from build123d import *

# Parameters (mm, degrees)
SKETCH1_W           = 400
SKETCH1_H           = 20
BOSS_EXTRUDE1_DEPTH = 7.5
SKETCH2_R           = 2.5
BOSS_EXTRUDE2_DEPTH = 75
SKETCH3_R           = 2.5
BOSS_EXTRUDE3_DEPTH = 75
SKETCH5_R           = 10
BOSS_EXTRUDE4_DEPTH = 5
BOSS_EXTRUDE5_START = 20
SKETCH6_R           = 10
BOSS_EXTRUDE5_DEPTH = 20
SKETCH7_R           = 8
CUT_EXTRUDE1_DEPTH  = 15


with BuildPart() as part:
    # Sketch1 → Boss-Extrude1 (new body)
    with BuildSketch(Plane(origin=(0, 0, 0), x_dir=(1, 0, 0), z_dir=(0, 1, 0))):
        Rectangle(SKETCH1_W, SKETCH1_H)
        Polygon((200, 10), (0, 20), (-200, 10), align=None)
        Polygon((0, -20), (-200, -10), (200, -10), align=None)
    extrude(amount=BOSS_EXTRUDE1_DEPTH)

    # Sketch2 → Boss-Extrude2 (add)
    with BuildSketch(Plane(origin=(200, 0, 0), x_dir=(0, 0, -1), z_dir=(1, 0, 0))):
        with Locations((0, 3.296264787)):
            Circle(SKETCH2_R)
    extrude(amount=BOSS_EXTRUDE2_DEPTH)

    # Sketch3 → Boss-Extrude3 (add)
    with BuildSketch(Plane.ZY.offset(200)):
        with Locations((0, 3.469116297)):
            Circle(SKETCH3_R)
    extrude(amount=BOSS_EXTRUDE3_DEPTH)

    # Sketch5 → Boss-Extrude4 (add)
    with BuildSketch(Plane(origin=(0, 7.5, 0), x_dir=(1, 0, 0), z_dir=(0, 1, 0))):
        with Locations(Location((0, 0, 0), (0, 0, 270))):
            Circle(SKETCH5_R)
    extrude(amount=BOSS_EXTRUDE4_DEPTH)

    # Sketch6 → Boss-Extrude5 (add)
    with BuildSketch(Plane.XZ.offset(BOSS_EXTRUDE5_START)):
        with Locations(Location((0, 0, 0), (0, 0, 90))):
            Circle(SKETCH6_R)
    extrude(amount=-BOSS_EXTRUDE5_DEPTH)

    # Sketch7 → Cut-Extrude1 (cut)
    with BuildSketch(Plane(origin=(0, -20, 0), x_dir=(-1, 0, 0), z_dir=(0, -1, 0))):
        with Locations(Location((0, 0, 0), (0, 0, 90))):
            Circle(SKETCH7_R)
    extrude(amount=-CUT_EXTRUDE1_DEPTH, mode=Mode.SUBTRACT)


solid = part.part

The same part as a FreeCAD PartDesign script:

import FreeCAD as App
import Part
import Sketcher

V = App.Vector
Q = App.Units.Quantity

doc = App.newDocument("Part")
body = doc.addObject("PartDesign::Body", "Body")

# Sketch on XZ plane
sketch1 = body.newObject("Sketcher::SketchObject", "Sketch")
sketch1.AttachmentSupport = (doc.getObject("XZ_Plane"), [""])
sketch1.MapMode = "FlatFace"
sketch1.addGeometry(Part.LineSegment(V(-200, -10, 0), V(-200, 10, 0)), False)
sketch1.addGeometry(Part.LineSegment(V(-200, 10, 0), V(0, 20, 0)), False)
sketch1.addGeometry(Part.LineSegment(V(0, 20, 0), V(200, 10, 0)), False)
sketch1.addGeometry(Part.LineSegment(V(200, 10, 0), V(200, -10, 0)), False)
sketch1.addGeometry(Part.LineSegment(V(200, -10, 0), V(0, -20, 0)), False)
sketch1.addGeometry(Part.LineSegment(V(0, -20, 0), V(-200, -10, 0)), False)
sketch1.addConstraint(Sketcher.Constraint("Coincident", 0, 2, 1, 1))
sketch1.addConstraint(Sketcher.Constraint("Coincident", 1, 2, 2, 1))
sketch1.addConstraint(Sketcher.Constraint("Coincident", 2, 2, 3, 1))
sketch1.addConstraint(Sketcher.Constraint("Coincident", 3, 2, 4, 1))
sketch1.addConstraint(Sketcher.Constraint("Coincident", 4, 2, 5, 1))
sketch1.addConstraint(Sketcher.Constraint("Coincident", 5, 2, 0, 1))
sketch1.addConstraint(Sketcher.Constraint("Vertical", 0))
sketch1.addConstraint(Sketcher.Constraint("Vertical", 3))
sketch1.addConstraint(Sketcher.Constraint("Symmetric", 0, 2, 3, 2, -1, 1))
sketch1.addConstraint(Sketcher.Constraint("Symmetric", 1, 2, 4, 2, -1, 1))
sketch1.addConstraint(Sketcher.Constraint("PointOnObject", 1, 2, -2))
sketch1.addConstraint(Sketcher.Constraint("Parallel", 2, 5))
sketch1.addConstraint(Sketcher.Constraint("Horizontal", 0, 2, 2, 2))
sketch1.addConstraint(Sketcher.Constraint("DistanceY", 0, 1, 0, 2, Q("20 mm")))
sketch1.addConstraint(Sketcher.Constraint("DistanceX", 0, 2, -1, 1, Q("200 mm")))
sketch1.addConstraint(Sketcher.Constraint("DistanceY", -1, 1, 1, 2, Q("20 mm")))
pad1 = body.newObject("PartDesign::Pad", "Pad")
pad1.Profile = sketch1
pad1.Length = 7.5
pad1.Reversed = True

# Sketch on YZ plane
sketch2 = body.newObject("Sketcher::SketchObject", "Sketch001")
sketch2.AttachmentSupport = (doc.getObject("YZ_Plane"), [""])
sketch2.MapMode = "FlatFace"
sketch2.AttachmentOffset = App.Placement(V(0, 0, 200), App.Rotation())
sketch2.addGeometry(Part.Circle(V(3.3, 0, 0), V(0, 0, 1), 2.5), False)
sketch2.addConstraint(Sketcher.Constraint("PointOnObject", 0, 3, -1))
sketch2.addConstraint(Sketcher.Constraint("Diameter", 0, Q("5 mm")))
sketch2.addConstraint(Sketcher.Constraint("DistanceX", -1, 1, 0, 3, Q("3.296265 mm")))
pad2 = body.newObject("PartDesign::Pad", "Pad001")
pad2.Profile = sketch2
pad2.Length = 75

# Sketch on YZ plane
sketch3 = body.newObject("Sketcher::SketchObject", "Sketch002")
sketch3.AttachmentSupport = (doc.getObject("YZ_Plane"), [""])
sketch3.MapMode = "FlatFace"
sketch3.AttachmentOffset = App.Placement(V(0, 0, -200), App.Rotation())
sketch3.addGeometry(Part.Circle(V(3.5, 0, 0), V(0, 0, 1), 2.5), False)
sketch3.addConstraint(Sketcher.Constraint("PointOnObject", 0, 3, -1))
sketch3.addConstraint(Sketcher.Constraint("Diameter", 0, Q("5 mm")))
sketch3.addConstraint(Sketcher.Constraint("DistanceX", -1, 1, 0, 3, Q("3.469116 mm")))
pad3 = body.newObject("PartDesign::Pad", "Pad002")
pad3.Profile = sketch3
pad3.Length = 75
pad3.Reversed = True

# Sketch on XZ plane
sketch4 = body.newObject("Sketcher::SketchObject", "Sketch003")
sketch4.AttachmentSupport = (doc.getObject("XZ_Plane"), [""])
sketch4.MapMode = "FlatFace"
sketch4.AttachmentOffset = App.Placement(V(0, 0, -7.5), App.Rotation())
sketch4.addGeometry(Part.Circle(V(0, 0, 0), V(0, 0, 1), 10), False)
sketch4.addConstraint(Sketcher.Constraint("Coincident", 0, 3, -1, 1))
sketch4.addConstraint(Sketcher.Constraint("Diameter", 0, Q("20 mm")))
pad4 = body.newObject("PartDesign::Pad", "Pad003")
pad4.Profile = sketch4
pad4.Length = 5
pad4.Reversed = True

# Sketch on XZ plane
sketch5 = body.newObject("Sketcher::SketchObject", "Sketch004")
sketch5.AttachmentSupport = (doc.getObject("XZ_Plane"), [""])
sketch5.MapMode = "FlatFace"
sketch5.AttachmentOffset = App.Placement(V(0, 0, 20), App.Rotation())
sketch5.addGeometry(Part.Circle(V(0, 0, 0), V(0, 0, 1), 10), False)
sketch5.addConstraint(Sketcher.Constraint("Coincident", 0, 3, -1, 1))
sketch5.addConstraint(Sketcher.Constraint("Diameter", 0, Q("20 mm")))
pad5 = body.newObject("PartDesign::Pad", "Pad004")
pad5.Profile = sketch5
pad5.Length = 20
pad5.Reversed = True

# Sketch on XZ plane
sketch6 = body.newObject("Sketcher::SketchObject", "Sketch005")
sketch6.AttachmentSupport = (doc.getObject("XZ_Plane"), [""])
sketch6.MapMode = "FlatFace"
sketch6.AttachmentOffset = App.Placement(V(0, 0, 20), App.Rotation())
sketch6.addGeometry(Part.Circle(V(0, 0, 0), V(0, 0, 1), 8), False)
sketch6.addConstraint(Sketcher.Constraint("Coincident", 0, 3, -1, 1))
sketch6.addConstraint(Sketcher.Constraint("Diameter", 0, Q("16 mm")))
pocket1 = body.newObject("PartDesign::Pocket", "Pocket")
pocket1.Profile = sketch6
pocket1.Length = 15

doc.recompute()
